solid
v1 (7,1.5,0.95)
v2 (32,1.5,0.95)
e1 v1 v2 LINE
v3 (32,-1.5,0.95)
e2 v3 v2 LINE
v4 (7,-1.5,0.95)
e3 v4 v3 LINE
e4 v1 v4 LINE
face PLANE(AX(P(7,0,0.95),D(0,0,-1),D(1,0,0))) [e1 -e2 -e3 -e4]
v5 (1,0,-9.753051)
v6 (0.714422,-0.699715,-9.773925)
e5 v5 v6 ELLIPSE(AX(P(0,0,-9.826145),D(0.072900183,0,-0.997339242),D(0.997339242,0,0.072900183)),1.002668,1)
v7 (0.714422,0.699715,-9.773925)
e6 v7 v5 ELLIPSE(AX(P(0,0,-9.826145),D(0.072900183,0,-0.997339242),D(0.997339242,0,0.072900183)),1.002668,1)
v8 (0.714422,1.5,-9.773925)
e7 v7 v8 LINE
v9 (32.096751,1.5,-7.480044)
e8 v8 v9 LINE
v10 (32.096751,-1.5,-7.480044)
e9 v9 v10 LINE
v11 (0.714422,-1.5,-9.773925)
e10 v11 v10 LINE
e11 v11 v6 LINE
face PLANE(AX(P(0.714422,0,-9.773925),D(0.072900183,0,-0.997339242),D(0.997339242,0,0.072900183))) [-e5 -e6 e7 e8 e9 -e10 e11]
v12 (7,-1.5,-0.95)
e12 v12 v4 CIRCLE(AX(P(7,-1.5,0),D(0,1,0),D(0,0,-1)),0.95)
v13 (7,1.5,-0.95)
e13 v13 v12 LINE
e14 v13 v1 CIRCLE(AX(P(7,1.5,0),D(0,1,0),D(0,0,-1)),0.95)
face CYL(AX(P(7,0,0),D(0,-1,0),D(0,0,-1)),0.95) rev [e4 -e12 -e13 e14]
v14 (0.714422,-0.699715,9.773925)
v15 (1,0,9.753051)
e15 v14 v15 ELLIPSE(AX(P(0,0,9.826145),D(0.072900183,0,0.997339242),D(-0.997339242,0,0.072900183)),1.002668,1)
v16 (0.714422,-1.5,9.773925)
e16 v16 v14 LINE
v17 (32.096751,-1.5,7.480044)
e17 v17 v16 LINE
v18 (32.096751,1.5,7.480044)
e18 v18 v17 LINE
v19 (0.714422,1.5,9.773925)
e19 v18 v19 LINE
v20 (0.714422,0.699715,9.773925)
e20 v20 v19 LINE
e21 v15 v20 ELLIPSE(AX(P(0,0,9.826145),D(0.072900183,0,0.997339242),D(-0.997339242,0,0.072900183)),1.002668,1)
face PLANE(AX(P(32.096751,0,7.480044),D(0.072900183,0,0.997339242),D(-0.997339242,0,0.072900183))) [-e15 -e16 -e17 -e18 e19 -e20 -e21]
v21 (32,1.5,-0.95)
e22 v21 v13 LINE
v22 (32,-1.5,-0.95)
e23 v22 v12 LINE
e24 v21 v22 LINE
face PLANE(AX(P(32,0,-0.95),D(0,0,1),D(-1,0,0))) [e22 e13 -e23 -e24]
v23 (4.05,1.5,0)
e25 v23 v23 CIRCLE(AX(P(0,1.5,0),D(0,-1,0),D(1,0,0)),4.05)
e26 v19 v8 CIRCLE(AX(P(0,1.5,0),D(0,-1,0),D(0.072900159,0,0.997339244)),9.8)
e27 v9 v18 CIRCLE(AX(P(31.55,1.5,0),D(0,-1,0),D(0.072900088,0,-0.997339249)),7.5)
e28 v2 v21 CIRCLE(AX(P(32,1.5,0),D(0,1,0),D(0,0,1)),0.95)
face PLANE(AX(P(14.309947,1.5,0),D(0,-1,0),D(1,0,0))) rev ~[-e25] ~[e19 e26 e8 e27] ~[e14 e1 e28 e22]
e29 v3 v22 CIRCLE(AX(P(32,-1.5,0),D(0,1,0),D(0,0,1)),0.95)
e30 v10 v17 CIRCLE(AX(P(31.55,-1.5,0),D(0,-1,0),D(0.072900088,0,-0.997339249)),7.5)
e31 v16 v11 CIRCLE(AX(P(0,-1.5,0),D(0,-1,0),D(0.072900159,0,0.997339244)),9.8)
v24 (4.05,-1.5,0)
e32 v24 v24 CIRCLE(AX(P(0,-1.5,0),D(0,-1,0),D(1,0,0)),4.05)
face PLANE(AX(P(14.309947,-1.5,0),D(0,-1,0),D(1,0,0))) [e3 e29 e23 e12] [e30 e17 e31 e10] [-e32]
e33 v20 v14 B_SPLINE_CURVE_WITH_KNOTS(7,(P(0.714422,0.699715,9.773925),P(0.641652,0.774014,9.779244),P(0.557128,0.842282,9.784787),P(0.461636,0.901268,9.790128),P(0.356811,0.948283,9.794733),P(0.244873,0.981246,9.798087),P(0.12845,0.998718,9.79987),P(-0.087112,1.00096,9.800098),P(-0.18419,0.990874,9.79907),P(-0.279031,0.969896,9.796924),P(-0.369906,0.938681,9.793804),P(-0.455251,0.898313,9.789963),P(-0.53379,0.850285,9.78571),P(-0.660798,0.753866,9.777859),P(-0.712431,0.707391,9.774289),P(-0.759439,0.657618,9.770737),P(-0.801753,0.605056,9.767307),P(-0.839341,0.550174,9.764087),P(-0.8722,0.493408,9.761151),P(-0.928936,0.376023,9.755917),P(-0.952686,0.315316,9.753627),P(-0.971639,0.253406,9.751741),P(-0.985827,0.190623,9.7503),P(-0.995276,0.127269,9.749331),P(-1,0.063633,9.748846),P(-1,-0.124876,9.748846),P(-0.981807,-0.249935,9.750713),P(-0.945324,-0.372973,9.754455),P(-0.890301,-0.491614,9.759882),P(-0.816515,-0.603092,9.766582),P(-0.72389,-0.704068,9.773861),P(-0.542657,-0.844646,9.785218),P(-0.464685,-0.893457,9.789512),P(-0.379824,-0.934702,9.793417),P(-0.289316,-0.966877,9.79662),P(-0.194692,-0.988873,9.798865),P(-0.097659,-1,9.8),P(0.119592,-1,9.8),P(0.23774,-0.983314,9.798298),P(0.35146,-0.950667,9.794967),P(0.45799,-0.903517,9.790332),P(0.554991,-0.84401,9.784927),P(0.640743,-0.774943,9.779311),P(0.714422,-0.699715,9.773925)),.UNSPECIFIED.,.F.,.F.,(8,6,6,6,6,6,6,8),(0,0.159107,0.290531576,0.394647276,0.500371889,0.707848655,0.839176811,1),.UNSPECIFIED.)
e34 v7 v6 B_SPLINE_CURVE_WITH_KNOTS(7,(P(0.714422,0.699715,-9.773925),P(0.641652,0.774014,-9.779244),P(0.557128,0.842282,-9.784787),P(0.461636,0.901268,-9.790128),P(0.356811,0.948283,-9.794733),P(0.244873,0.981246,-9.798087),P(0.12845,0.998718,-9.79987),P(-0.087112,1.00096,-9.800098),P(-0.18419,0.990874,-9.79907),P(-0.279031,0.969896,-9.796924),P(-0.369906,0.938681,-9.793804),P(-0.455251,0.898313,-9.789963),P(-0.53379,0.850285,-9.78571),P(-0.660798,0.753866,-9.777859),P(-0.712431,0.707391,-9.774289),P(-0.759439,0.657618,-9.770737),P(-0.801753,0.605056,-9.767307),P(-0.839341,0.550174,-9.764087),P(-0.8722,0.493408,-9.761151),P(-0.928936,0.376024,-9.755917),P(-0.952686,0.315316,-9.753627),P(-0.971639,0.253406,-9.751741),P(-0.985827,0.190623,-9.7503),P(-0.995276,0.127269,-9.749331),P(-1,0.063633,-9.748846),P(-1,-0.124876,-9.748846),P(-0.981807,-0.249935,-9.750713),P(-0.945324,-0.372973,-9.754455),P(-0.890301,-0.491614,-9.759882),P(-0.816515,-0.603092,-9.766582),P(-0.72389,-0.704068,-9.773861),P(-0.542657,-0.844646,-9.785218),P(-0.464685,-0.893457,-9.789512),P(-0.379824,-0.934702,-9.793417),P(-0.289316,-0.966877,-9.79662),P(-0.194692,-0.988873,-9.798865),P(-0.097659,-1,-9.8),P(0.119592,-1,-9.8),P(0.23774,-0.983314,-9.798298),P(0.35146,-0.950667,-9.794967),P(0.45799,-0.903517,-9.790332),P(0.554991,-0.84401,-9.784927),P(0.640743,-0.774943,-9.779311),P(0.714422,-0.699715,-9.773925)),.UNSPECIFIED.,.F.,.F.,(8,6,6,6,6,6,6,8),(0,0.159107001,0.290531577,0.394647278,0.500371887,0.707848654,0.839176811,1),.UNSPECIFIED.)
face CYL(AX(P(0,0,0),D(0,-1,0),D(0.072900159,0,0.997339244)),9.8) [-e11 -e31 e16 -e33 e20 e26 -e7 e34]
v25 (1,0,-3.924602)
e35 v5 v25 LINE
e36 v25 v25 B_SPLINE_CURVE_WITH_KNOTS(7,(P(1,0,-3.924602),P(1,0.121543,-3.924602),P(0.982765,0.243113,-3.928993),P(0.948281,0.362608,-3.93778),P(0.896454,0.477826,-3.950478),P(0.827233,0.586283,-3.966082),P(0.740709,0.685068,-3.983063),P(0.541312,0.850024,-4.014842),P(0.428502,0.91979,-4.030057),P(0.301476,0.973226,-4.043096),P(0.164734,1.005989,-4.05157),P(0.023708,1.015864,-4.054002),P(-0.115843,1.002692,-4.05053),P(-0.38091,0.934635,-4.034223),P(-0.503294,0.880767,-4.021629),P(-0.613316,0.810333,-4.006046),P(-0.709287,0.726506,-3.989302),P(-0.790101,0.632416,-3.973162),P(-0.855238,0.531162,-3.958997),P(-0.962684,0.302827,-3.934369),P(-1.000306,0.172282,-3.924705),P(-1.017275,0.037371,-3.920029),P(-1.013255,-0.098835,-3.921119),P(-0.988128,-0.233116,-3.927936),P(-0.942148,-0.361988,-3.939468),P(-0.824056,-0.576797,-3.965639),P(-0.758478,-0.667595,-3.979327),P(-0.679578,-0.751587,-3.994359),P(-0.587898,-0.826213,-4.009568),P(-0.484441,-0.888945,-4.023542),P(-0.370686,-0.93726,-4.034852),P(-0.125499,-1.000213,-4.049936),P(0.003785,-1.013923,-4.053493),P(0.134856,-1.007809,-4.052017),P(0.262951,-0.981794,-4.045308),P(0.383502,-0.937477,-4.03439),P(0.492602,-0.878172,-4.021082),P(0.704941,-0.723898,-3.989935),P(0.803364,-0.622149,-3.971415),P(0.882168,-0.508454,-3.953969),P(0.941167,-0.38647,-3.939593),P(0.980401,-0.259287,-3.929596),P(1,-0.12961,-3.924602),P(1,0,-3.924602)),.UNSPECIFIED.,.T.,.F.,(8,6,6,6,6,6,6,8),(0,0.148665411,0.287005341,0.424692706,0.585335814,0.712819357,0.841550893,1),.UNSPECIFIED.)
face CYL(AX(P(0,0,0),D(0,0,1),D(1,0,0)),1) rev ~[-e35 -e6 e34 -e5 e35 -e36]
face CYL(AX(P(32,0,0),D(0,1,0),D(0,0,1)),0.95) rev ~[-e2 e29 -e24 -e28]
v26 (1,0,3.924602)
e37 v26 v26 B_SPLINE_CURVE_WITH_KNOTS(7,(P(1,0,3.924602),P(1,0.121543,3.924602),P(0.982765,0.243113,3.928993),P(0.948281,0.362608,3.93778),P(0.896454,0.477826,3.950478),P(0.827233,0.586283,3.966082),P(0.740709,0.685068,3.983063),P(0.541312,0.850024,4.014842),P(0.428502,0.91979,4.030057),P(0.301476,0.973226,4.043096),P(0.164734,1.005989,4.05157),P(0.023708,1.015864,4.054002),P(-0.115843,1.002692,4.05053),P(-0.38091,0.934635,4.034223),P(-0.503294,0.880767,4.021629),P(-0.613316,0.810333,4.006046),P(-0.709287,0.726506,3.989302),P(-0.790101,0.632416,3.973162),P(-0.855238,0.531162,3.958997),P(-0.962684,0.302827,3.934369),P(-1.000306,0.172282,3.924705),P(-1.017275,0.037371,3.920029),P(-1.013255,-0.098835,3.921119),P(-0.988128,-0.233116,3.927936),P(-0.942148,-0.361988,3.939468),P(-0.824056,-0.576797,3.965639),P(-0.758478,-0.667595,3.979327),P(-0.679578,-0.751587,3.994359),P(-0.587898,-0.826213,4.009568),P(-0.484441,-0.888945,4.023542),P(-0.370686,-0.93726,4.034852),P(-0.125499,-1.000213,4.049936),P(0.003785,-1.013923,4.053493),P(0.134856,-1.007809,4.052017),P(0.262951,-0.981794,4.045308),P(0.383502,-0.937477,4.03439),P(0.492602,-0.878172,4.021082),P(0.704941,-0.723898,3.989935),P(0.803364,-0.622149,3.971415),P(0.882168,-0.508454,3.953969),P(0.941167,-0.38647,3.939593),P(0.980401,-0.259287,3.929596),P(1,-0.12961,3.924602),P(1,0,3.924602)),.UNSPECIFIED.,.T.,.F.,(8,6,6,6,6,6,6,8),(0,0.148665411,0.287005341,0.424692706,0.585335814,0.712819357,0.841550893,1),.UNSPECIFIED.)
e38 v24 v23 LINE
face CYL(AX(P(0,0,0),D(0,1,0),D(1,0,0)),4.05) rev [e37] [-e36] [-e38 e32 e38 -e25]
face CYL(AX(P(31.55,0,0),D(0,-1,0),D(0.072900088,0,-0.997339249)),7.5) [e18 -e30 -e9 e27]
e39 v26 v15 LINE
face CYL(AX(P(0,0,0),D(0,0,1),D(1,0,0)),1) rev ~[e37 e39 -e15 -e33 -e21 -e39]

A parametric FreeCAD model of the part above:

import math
import FreeCAD as App
import Part
import Sketcher

V = App.Vector
Q = App.Units.Quantity

doc = App.newDocument("Part")
body = doc.addObject("PartDesign::Body", "Body")

# Sketch on XZ plane
sketch1 = doc.addObject("Sketcher::SketchObject", "Sketch")
body.addObject(sketch1)
sketch1.AttachmentSupport = (doc.XZ_Plane, [""])
sketch1.MapMode = "FlatFace"
sketch1.addGeometry([
    Part.LineSegment(V(0.714422, -9.773925, 0), V(32.096751, -7.480044, 0)),  # 0
    Part.ArcOfCircle(Part.Circle(V(31.55, 0, 0), V(0, 0, 1), 7.5), math.radians(-85.819424), math.radians(85.819424)),  # 1
    Part.LineSegment(V(32.096751, 7.480044, 0), V(0.714422, 9.773925, 0)),  # 2
    Part.ArcOfCircle(Part.Circle(V(0, 0, 0), V(0, 0, 1), 9.8), math.radians(85.81942), math.radians(274.18058)),  # 3
    Part.Circle(V(0, 0, 0), V(0, 0, 1), 4.05),  # 4
    Part.LineSegment(V(7, 0.95, 0), V(32, 0.95, 0)),  # 5
    Part.ArcOfCircle(Part.Circle(V(32, 0, 0), V(0, 0, 1), 0.95), math.radians(-90), math.radians(90)),  # 6
    Part.LineSegment(V(32, -0.95, 0), V(7, -0.95, 0)),  # 7
    Part.ArcOfCircle(Part.Circle(V(7, 0, 0), V(0, 0, 1), 0.95), math.radians(90), math.radians(270)),  # 8
], False)
sketch1.addConstraint([
    Sketcher.Constraint("Tangent", 0, 2, 1, 1),
    Sketcher.Constraint("Tangent", 1, 2, 2, 1),
    Sketcher.Constraint("Tangent", 2, 2, 3, 1),
    Sketcher.Constraint("Tangent", 3, 2, 0, 1),
    Sketcher.Constraint("Tangent", 5, 2, 6, 2),
    Sketcher.Constraint("Tangent", 6, 1, 7, 1),
    Sketcher.Constraint("Tangent", 7, 2, 8, 2),
    Sketcher.Constraint("Tangent", 8, 1, 5, 1),
    Sketcher.Constraint("Horizontal", 5),
    Sketcher.Constraint("Horizontal", 7),
    Sketcher.Constraint("Coincident", 3, 3, -1, 1),
    Sketcher.Constraint("Coincident", 4, 3, -1, 1),
    Sketcher.Constraint("PointOnObject", 1, 3, -1),
    Sketcher.Constraint("PointOnObject", 6, 3, -1),
    Sketcher.Constraint("Diameter", 4, Q("8.1 mm")),
    Sketcher.Constraint("Radius", 1, Q("7.5 mm")),
    Sketcher.Constraint("Radius", 3, Q("9.8 mm")),
    Sketcher.Constraint("DistanceX", 5, 1, 5, 2, Q("25 mm")),
    Sketcher.Constraint("Radius", 6, Q("0.95 mm")),
    Sketcher.Constraint("DistanceX", -1, 1, 6, 3, Q("32 mm")),
    Sketcher.Constraint("DistanceX", -1, 1, 1, 3, Q("31.55 mm")),
])
pad1 = doc.addObject("PartDesign::Pad", "Pad")
body.addObject(pad1)
pad1.Profile = sketch1
pad1.Length = 3
pad1.Midplane = True

# Sketch on XY plane
sketch2 = doc.addObject("Sketcher::SketchObject", "Sketch001")
body.addObject(sketch2)
sketch2.AttachmentSupport = (doc.XY_Plane, [""])
sketch2.MapMode = "FlatFace"
sketch2.addGeometry(Part.Circle(V(0, 0, 0), V(0, 0, 1), 1), False)
sketch2.addConstraint([
    Sketcher.Constraint("Coincident", 0, 3, -1, 1),
    Sketcher.Constraint("Diameter", 0, Q("2 mm")),
])
pocket1 = doc.addObject("PartDesign::Pocket", "Pocket")
body.addObject(pocket1)
pocket1.Profile = sketch2
pocket1.Length = 25
pocket1.Midplane = True

doc.recompute()
